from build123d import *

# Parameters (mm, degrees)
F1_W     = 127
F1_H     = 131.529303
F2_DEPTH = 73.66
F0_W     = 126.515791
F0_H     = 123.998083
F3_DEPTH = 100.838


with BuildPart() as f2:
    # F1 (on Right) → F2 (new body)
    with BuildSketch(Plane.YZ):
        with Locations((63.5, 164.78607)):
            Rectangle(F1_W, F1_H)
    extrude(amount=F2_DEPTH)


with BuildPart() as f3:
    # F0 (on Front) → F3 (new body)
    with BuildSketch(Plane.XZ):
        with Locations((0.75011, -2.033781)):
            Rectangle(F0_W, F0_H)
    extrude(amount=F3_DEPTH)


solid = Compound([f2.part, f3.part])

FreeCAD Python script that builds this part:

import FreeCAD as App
import Part
import Sketcher
Q = App.Units.Quantity

doc = App.newDocument("Part")
body = doc.addObject("PartDesign::Body", "Body")

sketch1 = body.newObject("Sketcher::SketchObject", "Sketch")
sketch1.AttachmentSupport = (doc.getObject("YZ_Plane"), [""])
sketch1.MapMode = "FlatFace"
sketch1.addGeometry([
    Part.LineSegment(App.Vector(0, 231, 0), App.Vector(0, 99, 0)),
    Part.LineSegment(App.Vector(0, 99, 0), App.Vector(127, 99, 0)),
    Part.LineSegment(App.Vector(127, 99, 0), App.Vector(127, 231, 0)),
    Part.LineSegment(App.Vector(127, 231, 0), App.Vector(0, 231, 0)),
], False)
sketch1.addConstraint([
    Sketcher.Constraint("Coincident", 0, 2, 1, 1),
    Sketcher.Constraint("Coincident", 1, 2, 2, 1),
    Sketcher.Constraint("Coincident", 2, 2, 3, 1),
    Sketcher.Constraint("Coincident", 3, 2, 0, 1),
    Sketcher.Constraint("Vertical", 0),
    Sketcher.Constraint("Horizontal", 1),
    Sketcher.Constraint("Vertical", 2),
    Sketcher.Constraint("Horizontal", 3),
    Sketcher.Constraint("PointOnObject", 0, 2, -2),
    Sketcher.Constraint("DistanceX", 1, 1, 1, 2, Q("5 in")),
    Sketcher.Constraint("DistanceY", -1, 1, 2, 2, Q("9.0768001 in")),
    Sketcher.Constraint("DistanceY", 0, 2, 0, 1, 131.529303),
])
pad1 = body.newObject("PartDesign::Pad", "Pad")
pad1.Profile = sketch1
pad1.Length = Q("2.9 in")
body2 = doc.addObject("PartDesign::Body", "Body001")

sketch2 = body2.newObject("Sketcher::SketchObject", "Sketch001")
sketch2.AttachmentSupport = (doc.getObject("XZ_Plane001"), [""])
sketch2.MapMode = "FlatFace"
sketch2.addGeometry([
    Part.LineSegment(App.Vector(-63, 60, 0), App.Vector(-63, -64, 0)),
    Part.LineSegment(App.Vector(-63, -64, 0), App.Vector(64, -64, 0)),
    Part.LineSegment(App.Vector(64, -64, 0), App.Vector(64, 60, 0)),
    Part.LineSegment(App.Vector(64, 60, 0), App.Vector(-63, 60, 0)),
], False)
sketch2.addConstraint([
    Sketcher.Constraint("Coincident", 0, 2, 1, 1),
    Sketcher.Constraint("Coincident", 1, 2, 2, 1),
    Sketcher.Constraint("Coincident", 2, 2, 3, 1),
    Sketcher.Constraint("Coincident", 3, 2, 0, 1),
    Sketcher.Constraint("Vertical", 0),
    Sketcher.Constraint("Horizontal", 1),
    Sketcher.Constraint("Vertical", 2),
    Sketcher.Constraint("Horizontal", 3),
    Sketcher.Constraint("DistanceX", 1, 1, 1, 2, 126.515791),
    Sketcher.Constraint("DistanceY", 0, 2, 0, 1, 123.998083),
    Sketcher.Constraint("DistanceY", -1, 1, 2, 2, 59.96526),
    Sketcher.Constraint("DistanceX", 0, 2, -1, 1, 62.507785),
])
pad2 = body2.newObject("PartDesign::Pad", "Pad001")
pad2.Profile = sketch2
pad2.Length = Q("3.97 in")

doc.recompute()
